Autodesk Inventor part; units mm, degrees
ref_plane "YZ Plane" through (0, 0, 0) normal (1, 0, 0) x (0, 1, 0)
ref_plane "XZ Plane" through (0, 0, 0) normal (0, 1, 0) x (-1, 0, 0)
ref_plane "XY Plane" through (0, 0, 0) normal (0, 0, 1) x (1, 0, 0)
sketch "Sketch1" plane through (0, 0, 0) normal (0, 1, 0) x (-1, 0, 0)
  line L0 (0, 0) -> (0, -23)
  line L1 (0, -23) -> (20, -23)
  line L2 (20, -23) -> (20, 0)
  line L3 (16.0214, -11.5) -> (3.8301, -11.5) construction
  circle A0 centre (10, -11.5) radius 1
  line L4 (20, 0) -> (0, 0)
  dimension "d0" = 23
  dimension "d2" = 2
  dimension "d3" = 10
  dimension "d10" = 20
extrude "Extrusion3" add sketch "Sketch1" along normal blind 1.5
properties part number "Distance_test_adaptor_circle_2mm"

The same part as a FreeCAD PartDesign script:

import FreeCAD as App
import Part
import Sketcher
from FreeCAD import Vector

doc = App.newDocument("Part")
body = doc.addObject("PartDesign::Body", "Body")

sketch1 = body.newObject("Sketcher::SketchObject", "Sketch")
sketch1.AttachmentSupport = (doc.getObject("XZ_Plane"), [""])
sketch1.MapMode = "FlatFace"
sketch1.addGeometry([
    Part.LineSegment(Vector(-20, 0, 0), Vector(0, 0, 0)),
    Part.LineSegment(Vector(0, 0, 0), Vector(0, -23, 0)),
    Part.LineSegment(Vector(0, -23, 0), Vector(-20, -23, 0)),
    Part.LineSegment(Vector(-20, -23, 0), Vector(-20, 0, 0)),
    Part.Circle(Vector(-10, -11.5, 0), Vector(0, 0, 1), 1),
], False)
sketch1.addConstraint([
    Sketcher.Constraint("Coincident", 0, 2, 1, 1),
    Sketcher.Constraint("Coincident", 1, 2, 2, 1),
    Sketcher.Constraint("Coincident", 2, 2, 3, 1),
    Sketcher.Constraint("Coincident", 3, 2, 0, 1),
    Sketcher.Constraint("Horizontal", 0),
    Sketcher.Constraint("Vertical", 1),
    Sketcher.Constraint("Horizontal", 2),
    Sketcher.Constraint("Vertical", 3),
    Sketcher.Constraint("Coincident", 0, 2, -1, 1),
    Sketcher.Constraint("Diameter", 4, 2.0),
    Sketcher.Constraint("DistanceX", 0, 1, 0, 2, 20.0),
    Sketcher.Constraint("DistanceY", 1, 2, 1, 1, 23.0),
    Sketcher.Constraint("DistanceX", 4, 3, -1, 1, 10.0),
    Sketcher.Constraint("DistanceY", 4, 3, -1, 1, 11.5),
])
pad1 = body.newObject("PartDesign::Pad", "Pad")
pad1.Profile = sketch1
pad1.Length = 1.5
pad1.Reversed = True

doc.recompute()
